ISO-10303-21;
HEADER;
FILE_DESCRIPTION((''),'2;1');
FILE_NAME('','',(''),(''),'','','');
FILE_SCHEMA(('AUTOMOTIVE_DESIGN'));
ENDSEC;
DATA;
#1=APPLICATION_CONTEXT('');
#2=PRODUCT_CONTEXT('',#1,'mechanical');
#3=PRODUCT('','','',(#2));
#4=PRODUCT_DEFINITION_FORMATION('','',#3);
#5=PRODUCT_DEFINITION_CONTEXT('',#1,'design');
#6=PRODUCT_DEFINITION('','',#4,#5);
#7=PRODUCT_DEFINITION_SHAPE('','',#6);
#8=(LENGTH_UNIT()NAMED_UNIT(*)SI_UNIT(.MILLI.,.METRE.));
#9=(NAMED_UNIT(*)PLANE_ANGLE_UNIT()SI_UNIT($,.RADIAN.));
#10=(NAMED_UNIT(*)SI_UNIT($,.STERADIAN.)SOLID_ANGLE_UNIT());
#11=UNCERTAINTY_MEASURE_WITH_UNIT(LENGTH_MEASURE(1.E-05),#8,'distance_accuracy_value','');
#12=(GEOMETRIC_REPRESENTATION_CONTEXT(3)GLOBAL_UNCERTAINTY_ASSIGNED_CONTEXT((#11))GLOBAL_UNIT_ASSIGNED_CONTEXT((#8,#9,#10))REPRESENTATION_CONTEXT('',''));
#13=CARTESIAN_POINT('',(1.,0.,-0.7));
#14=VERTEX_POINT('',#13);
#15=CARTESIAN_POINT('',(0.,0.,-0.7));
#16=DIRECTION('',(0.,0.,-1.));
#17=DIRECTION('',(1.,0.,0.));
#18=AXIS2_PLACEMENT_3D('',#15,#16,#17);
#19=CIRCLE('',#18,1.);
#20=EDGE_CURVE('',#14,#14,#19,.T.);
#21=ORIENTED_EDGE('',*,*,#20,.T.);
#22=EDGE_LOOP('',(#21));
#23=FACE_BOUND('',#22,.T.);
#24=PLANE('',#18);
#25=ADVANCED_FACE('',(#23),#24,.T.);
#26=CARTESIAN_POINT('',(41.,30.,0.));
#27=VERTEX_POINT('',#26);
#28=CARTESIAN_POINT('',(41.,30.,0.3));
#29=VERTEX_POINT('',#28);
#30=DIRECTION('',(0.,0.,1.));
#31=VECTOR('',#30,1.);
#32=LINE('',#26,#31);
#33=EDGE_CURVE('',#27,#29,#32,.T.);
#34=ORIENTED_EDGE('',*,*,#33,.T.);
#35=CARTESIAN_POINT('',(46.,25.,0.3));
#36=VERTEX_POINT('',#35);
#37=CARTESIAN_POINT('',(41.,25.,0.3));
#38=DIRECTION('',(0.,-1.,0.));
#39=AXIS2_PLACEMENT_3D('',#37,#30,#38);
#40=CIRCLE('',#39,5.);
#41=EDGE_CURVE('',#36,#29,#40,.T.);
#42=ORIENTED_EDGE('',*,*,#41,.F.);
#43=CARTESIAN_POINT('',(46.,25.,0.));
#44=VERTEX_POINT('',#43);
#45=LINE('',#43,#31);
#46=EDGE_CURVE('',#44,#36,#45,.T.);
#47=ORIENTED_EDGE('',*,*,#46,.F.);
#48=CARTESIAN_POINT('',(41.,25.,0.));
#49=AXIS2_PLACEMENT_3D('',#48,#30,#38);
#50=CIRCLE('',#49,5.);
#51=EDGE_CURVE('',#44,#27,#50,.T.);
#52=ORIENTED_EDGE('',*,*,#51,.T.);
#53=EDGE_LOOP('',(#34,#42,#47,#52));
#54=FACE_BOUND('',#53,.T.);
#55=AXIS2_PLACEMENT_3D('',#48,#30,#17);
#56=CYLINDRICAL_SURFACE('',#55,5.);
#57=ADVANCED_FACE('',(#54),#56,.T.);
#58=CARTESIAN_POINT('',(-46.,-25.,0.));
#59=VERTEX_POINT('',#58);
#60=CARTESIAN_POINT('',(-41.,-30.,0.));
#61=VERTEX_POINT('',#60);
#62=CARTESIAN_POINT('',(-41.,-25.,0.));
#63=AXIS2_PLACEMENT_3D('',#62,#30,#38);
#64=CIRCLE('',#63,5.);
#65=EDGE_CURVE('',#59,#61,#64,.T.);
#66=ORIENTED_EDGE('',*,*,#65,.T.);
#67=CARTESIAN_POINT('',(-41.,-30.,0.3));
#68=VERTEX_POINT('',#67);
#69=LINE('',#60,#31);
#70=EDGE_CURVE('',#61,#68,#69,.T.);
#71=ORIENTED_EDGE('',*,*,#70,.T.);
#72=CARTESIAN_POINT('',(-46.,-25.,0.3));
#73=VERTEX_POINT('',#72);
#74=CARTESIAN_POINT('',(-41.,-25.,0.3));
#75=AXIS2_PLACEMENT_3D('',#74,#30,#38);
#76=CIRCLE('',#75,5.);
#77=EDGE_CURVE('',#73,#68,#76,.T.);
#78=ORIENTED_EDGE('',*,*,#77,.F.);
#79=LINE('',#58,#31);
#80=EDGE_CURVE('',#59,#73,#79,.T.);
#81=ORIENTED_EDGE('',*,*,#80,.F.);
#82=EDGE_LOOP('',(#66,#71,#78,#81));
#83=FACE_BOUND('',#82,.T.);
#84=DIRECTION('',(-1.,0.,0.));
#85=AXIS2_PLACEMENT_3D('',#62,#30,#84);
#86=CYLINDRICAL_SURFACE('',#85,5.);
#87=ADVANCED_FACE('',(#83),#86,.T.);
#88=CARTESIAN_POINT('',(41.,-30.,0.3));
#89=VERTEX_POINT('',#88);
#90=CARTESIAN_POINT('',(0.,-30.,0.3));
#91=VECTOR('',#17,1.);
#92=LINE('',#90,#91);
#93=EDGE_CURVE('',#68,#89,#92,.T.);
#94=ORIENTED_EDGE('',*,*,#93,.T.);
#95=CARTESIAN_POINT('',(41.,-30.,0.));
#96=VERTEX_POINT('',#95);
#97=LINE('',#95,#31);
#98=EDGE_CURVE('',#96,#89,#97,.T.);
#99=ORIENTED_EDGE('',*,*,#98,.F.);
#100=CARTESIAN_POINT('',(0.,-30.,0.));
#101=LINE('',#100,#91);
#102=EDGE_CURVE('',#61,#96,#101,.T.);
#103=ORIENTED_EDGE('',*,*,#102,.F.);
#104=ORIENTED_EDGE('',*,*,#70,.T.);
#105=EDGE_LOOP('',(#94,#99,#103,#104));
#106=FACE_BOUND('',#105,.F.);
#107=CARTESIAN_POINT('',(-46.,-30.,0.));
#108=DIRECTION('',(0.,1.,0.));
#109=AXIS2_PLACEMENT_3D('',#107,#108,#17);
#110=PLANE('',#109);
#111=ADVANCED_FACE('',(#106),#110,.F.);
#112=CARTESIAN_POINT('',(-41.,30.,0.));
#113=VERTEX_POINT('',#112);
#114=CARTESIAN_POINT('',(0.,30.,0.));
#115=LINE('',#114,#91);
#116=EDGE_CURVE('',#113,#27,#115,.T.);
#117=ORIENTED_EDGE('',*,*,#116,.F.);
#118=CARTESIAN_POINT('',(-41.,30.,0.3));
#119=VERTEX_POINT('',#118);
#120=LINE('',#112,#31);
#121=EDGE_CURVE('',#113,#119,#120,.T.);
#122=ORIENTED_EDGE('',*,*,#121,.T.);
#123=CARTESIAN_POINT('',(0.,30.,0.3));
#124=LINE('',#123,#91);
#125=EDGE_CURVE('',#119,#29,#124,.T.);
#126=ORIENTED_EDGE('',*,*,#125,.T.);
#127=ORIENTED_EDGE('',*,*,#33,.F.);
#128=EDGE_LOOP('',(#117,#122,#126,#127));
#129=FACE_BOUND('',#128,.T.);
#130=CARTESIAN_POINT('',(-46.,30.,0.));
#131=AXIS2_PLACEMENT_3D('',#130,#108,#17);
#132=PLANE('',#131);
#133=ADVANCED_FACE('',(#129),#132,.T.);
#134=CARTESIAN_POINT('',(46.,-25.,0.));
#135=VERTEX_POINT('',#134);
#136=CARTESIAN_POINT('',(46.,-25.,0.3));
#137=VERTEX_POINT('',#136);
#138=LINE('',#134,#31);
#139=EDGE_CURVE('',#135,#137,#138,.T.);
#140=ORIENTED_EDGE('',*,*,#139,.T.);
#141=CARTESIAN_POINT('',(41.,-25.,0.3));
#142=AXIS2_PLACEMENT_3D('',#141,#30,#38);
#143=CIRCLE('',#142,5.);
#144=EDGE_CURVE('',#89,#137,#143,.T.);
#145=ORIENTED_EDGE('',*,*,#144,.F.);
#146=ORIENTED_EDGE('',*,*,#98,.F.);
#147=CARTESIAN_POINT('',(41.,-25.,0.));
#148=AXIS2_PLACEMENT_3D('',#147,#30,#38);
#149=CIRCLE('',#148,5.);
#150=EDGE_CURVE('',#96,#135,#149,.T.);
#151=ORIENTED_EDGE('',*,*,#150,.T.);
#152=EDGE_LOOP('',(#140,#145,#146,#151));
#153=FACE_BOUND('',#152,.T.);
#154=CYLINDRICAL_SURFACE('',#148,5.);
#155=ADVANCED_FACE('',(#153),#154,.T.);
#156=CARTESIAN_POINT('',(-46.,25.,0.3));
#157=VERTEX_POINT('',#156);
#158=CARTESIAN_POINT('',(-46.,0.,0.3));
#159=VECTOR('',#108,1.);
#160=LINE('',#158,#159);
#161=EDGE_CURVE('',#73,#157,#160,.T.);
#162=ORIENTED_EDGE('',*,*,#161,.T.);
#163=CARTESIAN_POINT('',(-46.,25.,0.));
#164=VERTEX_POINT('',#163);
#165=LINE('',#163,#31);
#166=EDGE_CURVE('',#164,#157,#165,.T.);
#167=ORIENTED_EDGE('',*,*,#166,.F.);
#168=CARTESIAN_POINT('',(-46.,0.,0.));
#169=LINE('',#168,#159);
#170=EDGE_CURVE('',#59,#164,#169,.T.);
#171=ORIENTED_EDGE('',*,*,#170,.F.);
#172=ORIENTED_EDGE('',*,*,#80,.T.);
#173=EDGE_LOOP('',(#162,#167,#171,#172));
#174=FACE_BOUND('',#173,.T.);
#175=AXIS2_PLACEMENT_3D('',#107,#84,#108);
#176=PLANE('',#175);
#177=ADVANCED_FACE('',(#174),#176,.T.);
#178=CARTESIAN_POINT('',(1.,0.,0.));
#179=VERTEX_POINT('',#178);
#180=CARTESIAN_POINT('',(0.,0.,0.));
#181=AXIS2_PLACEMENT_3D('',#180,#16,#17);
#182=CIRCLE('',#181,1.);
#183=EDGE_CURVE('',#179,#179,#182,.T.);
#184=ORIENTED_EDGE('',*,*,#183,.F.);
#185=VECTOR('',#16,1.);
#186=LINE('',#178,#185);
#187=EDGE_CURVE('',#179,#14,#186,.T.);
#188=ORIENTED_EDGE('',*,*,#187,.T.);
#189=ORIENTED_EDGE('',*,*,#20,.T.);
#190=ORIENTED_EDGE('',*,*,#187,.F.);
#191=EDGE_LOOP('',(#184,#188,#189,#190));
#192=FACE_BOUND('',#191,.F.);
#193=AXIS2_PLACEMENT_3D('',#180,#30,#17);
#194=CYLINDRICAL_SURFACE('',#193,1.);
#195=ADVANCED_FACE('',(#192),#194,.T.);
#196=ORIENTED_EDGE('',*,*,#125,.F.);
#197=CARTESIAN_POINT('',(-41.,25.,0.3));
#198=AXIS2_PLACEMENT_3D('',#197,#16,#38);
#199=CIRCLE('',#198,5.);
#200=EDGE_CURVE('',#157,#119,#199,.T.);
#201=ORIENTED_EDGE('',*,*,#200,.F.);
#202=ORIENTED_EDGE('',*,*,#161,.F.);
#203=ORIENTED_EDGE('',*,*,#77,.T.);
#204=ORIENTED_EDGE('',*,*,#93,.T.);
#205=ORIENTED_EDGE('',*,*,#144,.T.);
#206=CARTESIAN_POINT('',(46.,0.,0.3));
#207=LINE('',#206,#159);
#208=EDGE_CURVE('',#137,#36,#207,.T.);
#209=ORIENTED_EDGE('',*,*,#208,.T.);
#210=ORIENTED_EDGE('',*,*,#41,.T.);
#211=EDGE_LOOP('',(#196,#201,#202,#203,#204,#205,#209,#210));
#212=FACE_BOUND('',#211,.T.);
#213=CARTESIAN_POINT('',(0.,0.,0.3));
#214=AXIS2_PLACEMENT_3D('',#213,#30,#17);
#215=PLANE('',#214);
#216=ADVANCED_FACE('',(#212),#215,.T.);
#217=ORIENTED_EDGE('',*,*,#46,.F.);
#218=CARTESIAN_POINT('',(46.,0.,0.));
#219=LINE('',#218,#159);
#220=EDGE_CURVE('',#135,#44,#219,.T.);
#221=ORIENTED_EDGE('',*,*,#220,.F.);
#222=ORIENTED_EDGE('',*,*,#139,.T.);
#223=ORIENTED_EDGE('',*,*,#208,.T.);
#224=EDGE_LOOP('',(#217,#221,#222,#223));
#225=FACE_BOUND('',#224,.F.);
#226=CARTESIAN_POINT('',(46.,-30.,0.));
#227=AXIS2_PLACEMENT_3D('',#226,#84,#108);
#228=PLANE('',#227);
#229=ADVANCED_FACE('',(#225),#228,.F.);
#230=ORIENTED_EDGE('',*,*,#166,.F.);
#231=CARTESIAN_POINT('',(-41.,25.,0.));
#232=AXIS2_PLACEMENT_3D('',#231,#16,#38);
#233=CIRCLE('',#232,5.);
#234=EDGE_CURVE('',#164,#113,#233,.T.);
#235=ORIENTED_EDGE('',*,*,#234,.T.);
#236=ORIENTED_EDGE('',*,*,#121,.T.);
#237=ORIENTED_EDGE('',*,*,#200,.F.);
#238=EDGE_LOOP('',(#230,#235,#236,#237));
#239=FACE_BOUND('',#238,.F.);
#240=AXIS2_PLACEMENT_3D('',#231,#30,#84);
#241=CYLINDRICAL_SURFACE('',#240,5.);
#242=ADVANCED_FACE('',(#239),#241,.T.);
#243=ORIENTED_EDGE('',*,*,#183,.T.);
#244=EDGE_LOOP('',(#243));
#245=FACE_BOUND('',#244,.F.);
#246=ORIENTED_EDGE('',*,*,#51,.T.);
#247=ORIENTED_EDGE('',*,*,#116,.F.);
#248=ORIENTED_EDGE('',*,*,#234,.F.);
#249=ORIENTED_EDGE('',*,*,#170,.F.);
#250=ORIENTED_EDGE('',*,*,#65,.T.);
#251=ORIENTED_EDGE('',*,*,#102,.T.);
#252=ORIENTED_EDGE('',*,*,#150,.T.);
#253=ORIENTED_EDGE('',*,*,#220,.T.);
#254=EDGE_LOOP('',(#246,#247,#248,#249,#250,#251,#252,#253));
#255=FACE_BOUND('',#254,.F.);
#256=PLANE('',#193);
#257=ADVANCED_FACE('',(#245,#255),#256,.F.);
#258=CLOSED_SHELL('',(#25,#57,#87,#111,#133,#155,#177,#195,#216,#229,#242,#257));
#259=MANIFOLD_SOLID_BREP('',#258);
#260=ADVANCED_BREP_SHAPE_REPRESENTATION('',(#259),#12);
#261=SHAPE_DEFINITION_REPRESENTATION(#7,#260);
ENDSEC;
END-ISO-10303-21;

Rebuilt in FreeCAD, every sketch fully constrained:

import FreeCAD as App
import Part
import Sketcher
from FreeCAD import Vector


def edges_at(feature, points):
    """Names of the edges that pass closest to the given points."""
    edges = feature.Shape.Edges
    near = lambda p: min(range(len(edges)), key=lambda i: edges[i].distToShape(Part.Vertex(*p))[0])
    return sorted({f"Edge{near(p) + 1}" for p in points})

doc = App.newDocument("Part")
body = doc.addObject("PartDesign::Body", "Body")

# Sketch on XY plane
sketch1 = doc.addObject("Sketcher::SketchObject", "Sketch")
body.addObject(sketch1)
sketch1.AttachmentSupport = (doc.XY_Plane, [""])
sketch1.MapMode = "FlatFace"
sketch1.addGeometry([
    Part.LineSegment(Vector(-46, 30, 0), Vector(-46, -30, 0)),
    Part.LineSegment(Vector(-46, -30, 0), Vector(46, -30, 0)),
    Part.LineSegment(Vector(46, -30, 0), Vector(46, 30, 0)),
    Part.LineSegment(Vector(46, 30, 0), Vector(-46, 30, 0)),
], False)
sketch1.addConstraint([
    Sketcher.Constraint("Coincident", 0, 2, 1, 1),
    Sketcher.Constraint("Coincident", 1, 2, 2, 1),
    Sketcher.Constraint("Coincident", 2, 2, 3, 1),
    Sketcher.Constraint("Coincident", 3, 2, 0, 1),
    Sketcher.Constraint("Vertical", 0),
    Sketcher.Constraint("Horizontal", 1),
    Sketcher.Constraint("Vertical", 2),
    Sketcher.Constraint("Horizontal", 3),
    Sketcher.Constraint("Symmetric", 0, 2, 2, 2, -1, 1),
    Sketcher.Constraint("DistanceX", 1, 1, 1, 2, 92.0),
    Sketcher.Constraint("DistanceY", 0, 2, 0, 1, 60.0),
])
pad1 = doc.addObject("PartDesign::Pad", "Pad")
body.addObject(pad1)
pad1.Profile = sketch1
pad1.Length = 0.3
doc.recompute()

fillet = doc.addObject("PartDesign::Fillet", "Fillet")
body.addObject(fillet)
fillet.Base = (pad1, edges_at(pad1, [
    (-46, 30, 0.15),
    (-46, -30, 0.15),
    (46, 30, 0.15),
    (46, -30, 0.15),
]))
fillet.Radius = 5

# Sketch on XY plane
sketch2 = doc.addObject("Sketcher::SketchObject", "Sketch001")
body.addObject(sketch2)
sketch2.AttachmentSupport = (doc.XY_Plane, [""])
sketch2.MapMode = "FlatFace"
sketch2.addGeometry(Part.Circle(Vector(0, 0, 0), Vector(0, 0, 1), 1), False)
sketch2.addConstraint([
    Sketcher.Constraint("Coincident", 0, 3, -1, 1),
    Sketcher.Constraint("Diameter", 0, 2.0),
])
pad2 = doc.addObject("PartDesign::Pad", "Pad001")
body.addObject(pad2)
pad2.Profile = sketch2
pad2.Length = 0.7
pad2.Reversed = True

doc.recompute()
